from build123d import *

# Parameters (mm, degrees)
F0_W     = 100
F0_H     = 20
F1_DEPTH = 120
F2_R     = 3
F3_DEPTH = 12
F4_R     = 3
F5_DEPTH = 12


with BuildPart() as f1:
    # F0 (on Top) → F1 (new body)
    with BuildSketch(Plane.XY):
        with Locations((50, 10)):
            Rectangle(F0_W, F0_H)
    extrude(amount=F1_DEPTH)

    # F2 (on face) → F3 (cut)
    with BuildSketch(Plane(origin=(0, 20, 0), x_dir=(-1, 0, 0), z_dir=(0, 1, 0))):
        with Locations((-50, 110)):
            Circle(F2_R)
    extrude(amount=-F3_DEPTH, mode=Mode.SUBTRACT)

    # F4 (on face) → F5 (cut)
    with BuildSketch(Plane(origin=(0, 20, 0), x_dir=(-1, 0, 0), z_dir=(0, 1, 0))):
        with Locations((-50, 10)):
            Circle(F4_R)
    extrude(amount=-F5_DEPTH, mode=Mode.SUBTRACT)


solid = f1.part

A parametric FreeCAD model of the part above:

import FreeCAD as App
import Part
import Sketcher

V = App.Vector
Q = App.Units.Quantity


def add_polygon(sketch, points):
    """Adds a closed chain of lines whose ends are joined by coincident constraints."""
    first, n = sketch.GeometryCount, len(points)
    for a, b in zip(points, points[1:] + points[:1]):
        sketch.addGeometry(Part.LineSegment(App.Vector(*a, 0), App.Vector(*b, 0)), False)
    for i in range(n):
        sketch.addConstraint(Sketcher.Constraint("Coincident", first + i, 2, first + (i + 1) % n, 1))

doc = App.newDocument("Part")
body = doc.addObject("PartDesign::Body", "Body")

# Sketch on XY plane
sketch1 = body.newObject("Sketcher::SketchObject", "Sketch")
sketch1.AttachmentSupport = (doc.getObject("XY_Plane"), [""])
sketch1.MapMode = "FlatFace"
add_polygon(sketch1, [(0, 20), (0, 0), (100, 0), (100, 20)])  # lines 0-3
sketch1.addConstraint([
    Sketcher.Constraint("Vertical", 0),
    Sketcher.Constraint("Horizontal", 1),
    Sketcher.Constraint("Vertical", 2),
    Sketcher.Constraint("Horizontal", 3),
    Sketcher.Constraint("Coincident", 0, 2, -1, 1),
    Sketcher.Constraint("DistanceX", 1, 1, 1, 2, Q("100 mm")),
    Sketcher.Constraint("DistanceY", 0, 2, 0, 1, Q("20 mm")),
])
pad1 = body.newObject("PartDesign::Pad", "Pad")
pad1.Profile = sketch1
pad1.Length = 120

# Sketch on XZ plane
sketch2 = body.newObject("Sketcher::SketchObject", "Sketch001")
sketch2.AttachmentSupport = (doc.getObject("XZ_Plane"), [""])
sketch2.MapMode = "FlatFace"
sketch2.AttachmentOffset = App.Placement(V(0, 0, -20), App.Rotation())
sketch2.addGeometry(Part.Circle(V(50, 110, 0), V(0, 0, 1), 3), False)
sketch2.addConstraint([
    Sketcher.Constraint("Diameter", 0, Q("6 mm")),
    Sketcher.Constraint("DistanceX", -1, 1, 0, 3, Q("50 mm")),
    Sketcher.Constraint("DistanceY", -1, 1, 0, 3, Q("110 mm")),
])
pocket1 = body.newObject("PartDesign::Pocket", "Pocket")
pocket1.Profile = sketch2
pocket1.Length = 12
pocket1.Reversed = True

# Sketch on XZ plane
sketch3 = body.newObject("Sketcher::SketchObject", "Sketch002")
sketch3.AttachmentSupport = (doc.getObject("XZ_Plane"), [""])
sketch3.MapMode = "FlatFace"
sketch3.AttachmentOffset = App.Placement(V(0, 0, -20), App.Rotation())
sketch3.addGeometry(Part.Circle(V(50, 10, 0), V(0, 0, 1), 3), False)
sketch3.addConstraint([
    Sketcher.Constraint("Diameter", 0, Q("6 mm")),
    Sketcher.Constraint("DistanceX", -1, 1, 0, 3, Q("50 mm")),
    Sketcher.Constraint("DistanceY", -1, 1, 0, 3, Q("10 mm")),
])
pocket2 = body.newObject("PartDesign::Pocket", "Pocket001")
pocket2.Profile = sketch3
pocket2.Length = 12
pocket2.Reversed = True

doc.recompute()
